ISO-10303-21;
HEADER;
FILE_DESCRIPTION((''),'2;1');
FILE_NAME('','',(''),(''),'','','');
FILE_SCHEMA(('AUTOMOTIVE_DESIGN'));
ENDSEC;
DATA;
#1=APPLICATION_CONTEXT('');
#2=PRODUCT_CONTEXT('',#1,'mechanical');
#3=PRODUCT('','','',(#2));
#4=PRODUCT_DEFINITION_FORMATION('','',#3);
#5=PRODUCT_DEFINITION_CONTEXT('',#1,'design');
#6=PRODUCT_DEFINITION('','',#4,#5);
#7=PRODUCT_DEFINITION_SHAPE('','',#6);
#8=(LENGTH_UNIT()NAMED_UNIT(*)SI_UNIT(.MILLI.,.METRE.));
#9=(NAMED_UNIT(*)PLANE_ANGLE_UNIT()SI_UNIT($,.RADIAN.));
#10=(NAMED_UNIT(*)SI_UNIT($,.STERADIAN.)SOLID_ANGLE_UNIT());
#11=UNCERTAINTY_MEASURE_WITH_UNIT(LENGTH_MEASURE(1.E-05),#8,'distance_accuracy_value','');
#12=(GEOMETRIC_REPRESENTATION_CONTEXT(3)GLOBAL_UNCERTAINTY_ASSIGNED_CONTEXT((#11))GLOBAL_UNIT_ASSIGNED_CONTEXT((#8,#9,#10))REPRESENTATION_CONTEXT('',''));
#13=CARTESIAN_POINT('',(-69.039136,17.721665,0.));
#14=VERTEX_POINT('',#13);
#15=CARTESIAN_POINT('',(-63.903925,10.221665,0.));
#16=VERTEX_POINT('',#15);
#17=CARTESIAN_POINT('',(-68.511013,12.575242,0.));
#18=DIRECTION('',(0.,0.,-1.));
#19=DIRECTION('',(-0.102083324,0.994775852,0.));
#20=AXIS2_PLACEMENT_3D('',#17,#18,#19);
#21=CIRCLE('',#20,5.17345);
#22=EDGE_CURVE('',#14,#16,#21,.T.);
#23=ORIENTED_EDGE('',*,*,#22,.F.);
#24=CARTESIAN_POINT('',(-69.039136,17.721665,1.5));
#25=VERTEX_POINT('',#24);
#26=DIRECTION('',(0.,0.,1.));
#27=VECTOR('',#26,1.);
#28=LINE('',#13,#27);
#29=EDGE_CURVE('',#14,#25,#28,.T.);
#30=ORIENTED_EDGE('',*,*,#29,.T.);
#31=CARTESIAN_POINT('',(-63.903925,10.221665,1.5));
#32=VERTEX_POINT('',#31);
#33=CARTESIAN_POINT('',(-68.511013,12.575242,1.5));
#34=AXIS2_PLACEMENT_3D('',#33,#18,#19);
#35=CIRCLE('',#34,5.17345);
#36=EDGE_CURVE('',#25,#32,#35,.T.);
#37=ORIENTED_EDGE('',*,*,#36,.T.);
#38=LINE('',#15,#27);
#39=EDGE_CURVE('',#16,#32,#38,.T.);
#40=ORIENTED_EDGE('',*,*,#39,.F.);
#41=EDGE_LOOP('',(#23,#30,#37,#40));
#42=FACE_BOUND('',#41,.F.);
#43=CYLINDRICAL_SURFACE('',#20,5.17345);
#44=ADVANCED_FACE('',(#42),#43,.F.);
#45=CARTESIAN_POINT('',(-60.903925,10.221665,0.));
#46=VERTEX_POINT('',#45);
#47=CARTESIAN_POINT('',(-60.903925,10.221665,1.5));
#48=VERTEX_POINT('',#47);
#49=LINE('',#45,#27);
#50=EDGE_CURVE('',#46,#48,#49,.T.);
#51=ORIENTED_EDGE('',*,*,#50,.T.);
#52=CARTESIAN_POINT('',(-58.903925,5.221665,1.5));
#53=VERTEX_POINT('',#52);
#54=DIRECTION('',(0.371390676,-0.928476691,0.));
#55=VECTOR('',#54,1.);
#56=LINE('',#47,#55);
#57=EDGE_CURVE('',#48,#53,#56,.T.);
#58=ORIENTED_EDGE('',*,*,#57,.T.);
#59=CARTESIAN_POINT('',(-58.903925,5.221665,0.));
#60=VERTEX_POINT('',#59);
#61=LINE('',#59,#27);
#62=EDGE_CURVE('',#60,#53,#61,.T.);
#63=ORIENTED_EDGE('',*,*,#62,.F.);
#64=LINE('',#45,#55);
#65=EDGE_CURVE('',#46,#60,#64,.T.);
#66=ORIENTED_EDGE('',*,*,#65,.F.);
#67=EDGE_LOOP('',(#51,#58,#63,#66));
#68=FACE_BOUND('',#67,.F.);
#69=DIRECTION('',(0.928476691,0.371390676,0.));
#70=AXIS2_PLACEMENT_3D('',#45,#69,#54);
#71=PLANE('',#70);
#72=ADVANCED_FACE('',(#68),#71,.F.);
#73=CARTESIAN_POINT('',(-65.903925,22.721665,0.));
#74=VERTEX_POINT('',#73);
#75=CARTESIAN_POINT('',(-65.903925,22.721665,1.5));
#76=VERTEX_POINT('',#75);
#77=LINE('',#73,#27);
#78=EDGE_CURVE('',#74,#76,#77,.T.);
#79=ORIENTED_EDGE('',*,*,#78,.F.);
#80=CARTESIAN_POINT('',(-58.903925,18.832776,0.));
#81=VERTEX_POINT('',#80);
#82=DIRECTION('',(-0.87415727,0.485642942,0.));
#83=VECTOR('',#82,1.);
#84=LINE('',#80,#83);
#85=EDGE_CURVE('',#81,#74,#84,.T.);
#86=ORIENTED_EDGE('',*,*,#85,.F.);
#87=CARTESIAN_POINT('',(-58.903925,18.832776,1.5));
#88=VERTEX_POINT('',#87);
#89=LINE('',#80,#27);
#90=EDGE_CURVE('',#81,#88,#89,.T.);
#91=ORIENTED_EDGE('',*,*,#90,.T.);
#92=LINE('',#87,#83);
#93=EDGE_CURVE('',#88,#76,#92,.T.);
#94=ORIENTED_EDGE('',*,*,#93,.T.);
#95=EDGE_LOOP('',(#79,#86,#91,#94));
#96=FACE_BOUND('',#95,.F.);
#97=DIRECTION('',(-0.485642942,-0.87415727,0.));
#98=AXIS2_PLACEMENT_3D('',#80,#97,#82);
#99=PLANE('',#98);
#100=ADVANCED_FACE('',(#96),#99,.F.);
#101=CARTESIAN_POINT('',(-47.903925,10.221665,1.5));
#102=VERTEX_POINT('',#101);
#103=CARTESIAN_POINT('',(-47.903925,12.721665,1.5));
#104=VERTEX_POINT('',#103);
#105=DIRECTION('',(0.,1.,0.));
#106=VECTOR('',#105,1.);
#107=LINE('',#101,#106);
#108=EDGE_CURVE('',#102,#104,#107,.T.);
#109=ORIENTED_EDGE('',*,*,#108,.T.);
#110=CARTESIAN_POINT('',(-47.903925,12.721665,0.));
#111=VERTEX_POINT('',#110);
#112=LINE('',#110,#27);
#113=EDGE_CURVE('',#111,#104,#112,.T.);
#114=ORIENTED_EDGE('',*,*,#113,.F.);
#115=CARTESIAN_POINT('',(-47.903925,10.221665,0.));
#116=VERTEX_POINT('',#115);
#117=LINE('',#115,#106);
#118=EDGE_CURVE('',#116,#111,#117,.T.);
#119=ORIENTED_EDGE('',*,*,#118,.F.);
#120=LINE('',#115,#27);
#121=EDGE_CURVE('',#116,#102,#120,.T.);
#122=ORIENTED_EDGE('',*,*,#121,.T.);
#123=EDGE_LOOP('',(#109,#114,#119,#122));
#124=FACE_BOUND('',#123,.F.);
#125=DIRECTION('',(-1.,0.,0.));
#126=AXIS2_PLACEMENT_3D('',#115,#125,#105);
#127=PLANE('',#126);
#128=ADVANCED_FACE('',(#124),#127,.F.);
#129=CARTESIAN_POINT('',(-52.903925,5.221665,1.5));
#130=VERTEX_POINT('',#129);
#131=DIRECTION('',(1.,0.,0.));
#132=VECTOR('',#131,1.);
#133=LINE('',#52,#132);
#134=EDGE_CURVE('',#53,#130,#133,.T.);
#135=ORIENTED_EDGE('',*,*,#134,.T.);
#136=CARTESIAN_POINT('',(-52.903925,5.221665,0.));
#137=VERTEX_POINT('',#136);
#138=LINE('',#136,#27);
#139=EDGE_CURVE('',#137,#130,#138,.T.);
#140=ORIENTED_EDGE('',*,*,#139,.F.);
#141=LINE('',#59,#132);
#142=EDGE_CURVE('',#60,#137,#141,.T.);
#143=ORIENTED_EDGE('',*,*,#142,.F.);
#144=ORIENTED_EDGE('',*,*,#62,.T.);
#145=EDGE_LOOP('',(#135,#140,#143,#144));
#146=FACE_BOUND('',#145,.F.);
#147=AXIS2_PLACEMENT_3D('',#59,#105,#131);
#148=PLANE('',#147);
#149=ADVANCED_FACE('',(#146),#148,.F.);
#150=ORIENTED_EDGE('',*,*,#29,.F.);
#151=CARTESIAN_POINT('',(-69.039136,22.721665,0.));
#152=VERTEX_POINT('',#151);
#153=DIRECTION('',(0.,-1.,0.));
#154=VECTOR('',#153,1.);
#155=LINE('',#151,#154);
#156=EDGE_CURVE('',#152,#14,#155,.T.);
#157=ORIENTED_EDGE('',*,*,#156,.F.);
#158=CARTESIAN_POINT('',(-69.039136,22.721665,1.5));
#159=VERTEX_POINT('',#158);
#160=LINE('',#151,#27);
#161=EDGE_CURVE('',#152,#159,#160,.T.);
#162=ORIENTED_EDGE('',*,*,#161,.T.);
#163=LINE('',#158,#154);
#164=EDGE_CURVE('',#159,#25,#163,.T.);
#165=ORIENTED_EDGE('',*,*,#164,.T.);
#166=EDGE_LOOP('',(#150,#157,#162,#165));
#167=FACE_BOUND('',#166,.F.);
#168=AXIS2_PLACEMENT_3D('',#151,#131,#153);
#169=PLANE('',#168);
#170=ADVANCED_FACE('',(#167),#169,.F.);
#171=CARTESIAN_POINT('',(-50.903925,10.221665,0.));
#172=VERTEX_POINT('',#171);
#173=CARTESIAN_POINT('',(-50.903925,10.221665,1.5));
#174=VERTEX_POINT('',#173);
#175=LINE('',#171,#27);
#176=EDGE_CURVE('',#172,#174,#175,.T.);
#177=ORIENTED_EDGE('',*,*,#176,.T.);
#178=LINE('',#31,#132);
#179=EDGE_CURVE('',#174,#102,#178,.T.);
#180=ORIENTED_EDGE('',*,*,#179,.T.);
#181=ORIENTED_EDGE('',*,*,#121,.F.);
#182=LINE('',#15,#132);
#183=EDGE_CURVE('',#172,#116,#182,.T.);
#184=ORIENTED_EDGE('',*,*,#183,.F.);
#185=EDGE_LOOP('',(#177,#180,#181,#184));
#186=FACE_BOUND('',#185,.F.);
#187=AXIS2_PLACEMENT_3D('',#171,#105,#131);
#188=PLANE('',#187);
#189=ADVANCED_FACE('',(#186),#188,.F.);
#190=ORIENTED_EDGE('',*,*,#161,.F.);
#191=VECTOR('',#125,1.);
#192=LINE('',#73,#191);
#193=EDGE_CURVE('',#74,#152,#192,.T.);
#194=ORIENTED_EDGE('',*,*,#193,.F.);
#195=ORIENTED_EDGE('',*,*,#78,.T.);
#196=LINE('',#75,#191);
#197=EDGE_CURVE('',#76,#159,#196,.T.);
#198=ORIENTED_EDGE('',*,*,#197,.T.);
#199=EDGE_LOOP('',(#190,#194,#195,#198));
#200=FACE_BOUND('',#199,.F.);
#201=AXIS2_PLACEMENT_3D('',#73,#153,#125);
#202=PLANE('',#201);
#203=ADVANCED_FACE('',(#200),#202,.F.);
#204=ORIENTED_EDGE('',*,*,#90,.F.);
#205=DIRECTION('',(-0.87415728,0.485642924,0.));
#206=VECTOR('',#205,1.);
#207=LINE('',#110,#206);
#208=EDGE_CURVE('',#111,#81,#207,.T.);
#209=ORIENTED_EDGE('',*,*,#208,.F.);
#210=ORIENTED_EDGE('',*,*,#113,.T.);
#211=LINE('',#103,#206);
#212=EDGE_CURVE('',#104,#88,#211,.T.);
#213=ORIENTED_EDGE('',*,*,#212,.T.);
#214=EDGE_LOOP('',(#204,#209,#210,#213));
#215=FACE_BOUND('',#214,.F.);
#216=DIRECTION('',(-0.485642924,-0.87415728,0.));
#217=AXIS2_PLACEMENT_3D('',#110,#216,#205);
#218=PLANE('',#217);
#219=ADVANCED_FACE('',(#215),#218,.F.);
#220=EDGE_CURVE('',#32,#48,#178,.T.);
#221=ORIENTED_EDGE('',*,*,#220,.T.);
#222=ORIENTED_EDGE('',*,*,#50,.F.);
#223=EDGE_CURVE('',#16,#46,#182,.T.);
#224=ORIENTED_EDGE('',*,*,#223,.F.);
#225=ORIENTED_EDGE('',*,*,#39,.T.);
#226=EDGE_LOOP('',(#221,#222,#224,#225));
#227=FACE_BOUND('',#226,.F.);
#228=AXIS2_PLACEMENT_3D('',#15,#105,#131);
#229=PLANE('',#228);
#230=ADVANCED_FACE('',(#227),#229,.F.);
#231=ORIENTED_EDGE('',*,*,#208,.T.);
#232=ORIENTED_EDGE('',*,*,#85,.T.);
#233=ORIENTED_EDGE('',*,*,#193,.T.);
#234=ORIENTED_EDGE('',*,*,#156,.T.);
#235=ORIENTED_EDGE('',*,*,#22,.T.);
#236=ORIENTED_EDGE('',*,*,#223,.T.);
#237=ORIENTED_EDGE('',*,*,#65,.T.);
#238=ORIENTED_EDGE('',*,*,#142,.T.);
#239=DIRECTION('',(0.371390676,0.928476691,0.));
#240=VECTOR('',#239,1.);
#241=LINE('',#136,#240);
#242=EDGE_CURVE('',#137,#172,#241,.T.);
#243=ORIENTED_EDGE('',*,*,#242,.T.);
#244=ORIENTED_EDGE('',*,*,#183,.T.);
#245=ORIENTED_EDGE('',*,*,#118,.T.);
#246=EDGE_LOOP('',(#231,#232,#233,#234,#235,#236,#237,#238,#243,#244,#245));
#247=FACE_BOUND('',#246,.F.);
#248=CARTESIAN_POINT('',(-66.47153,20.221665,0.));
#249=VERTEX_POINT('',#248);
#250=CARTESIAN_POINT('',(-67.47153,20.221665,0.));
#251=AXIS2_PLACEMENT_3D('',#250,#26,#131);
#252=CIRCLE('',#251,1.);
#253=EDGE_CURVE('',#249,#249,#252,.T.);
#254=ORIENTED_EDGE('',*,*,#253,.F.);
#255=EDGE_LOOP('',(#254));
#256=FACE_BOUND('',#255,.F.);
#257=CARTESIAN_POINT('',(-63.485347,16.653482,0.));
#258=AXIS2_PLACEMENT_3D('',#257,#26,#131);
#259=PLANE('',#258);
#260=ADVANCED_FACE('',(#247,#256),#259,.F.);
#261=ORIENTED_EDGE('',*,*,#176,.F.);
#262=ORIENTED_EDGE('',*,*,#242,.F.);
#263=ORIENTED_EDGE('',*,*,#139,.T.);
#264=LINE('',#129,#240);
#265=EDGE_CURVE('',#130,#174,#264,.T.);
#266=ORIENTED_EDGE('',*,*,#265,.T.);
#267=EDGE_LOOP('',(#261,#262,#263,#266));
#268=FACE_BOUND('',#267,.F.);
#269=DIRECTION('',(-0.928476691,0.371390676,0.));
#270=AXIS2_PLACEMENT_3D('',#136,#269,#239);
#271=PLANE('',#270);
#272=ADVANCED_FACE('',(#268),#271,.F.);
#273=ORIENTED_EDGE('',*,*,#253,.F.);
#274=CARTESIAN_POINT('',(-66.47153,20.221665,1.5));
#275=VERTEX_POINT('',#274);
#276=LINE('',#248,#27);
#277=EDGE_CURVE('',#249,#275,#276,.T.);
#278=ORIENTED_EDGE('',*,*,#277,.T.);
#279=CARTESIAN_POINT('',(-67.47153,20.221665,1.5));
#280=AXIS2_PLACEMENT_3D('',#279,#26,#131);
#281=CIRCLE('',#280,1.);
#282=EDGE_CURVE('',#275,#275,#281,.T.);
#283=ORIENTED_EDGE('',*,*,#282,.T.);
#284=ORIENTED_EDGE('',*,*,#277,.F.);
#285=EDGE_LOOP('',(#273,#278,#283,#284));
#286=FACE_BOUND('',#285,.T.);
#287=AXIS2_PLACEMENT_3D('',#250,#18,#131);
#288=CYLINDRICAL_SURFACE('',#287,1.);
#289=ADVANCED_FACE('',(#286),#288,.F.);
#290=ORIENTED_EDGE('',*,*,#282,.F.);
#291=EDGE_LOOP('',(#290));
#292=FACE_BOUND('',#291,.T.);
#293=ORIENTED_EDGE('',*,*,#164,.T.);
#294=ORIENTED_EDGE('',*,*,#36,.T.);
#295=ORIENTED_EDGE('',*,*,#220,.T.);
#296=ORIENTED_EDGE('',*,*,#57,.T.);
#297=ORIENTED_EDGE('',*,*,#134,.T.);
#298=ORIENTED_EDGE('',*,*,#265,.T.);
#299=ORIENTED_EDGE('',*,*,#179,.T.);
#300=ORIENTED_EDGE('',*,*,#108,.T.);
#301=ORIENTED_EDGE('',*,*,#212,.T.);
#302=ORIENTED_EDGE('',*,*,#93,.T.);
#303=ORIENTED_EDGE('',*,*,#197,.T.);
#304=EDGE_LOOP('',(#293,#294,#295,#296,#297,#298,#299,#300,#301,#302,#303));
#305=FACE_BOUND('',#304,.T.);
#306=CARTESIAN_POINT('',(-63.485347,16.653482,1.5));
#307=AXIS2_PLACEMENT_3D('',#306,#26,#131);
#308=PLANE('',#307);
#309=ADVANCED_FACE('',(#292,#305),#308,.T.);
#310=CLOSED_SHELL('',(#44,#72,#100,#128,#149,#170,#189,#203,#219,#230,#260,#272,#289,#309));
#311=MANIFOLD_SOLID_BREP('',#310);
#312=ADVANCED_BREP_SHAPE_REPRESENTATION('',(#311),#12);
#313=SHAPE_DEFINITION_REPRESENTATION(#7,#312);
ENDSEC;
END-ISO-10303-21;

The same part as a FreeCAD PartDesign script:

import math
import FreeCAD as App
import Part
import Sketcher

V = App.Vector
Q = App.Units.Quantity

doc = App.newDocument("Part")
body = doc.addObject("PartDesign::Body", "Body")

sketch1 = doc.addObject("Sketcher::SketchObject", "Sketch")
body.addObject(sketch1)
sketch1.AttachmentSupport = (doc.XY_Plane, [""])
sketch1.MapMode = "FlatFace"
sketch1.addGeometry([
    Part.LineSegment(V(-63.9, 10.2, 0), V(-60.9, 10.2, 0)),
    Part.LineSegment(V(-60.9, 10.2, 0), V(-58.9, 5.2, 0)),
    Part.LineSegment(V(-58.9, 5.2, 0), V(-52.9, 5.2, 0)),
    Part.LineSegment(V(-52.9, 5.2, 0), V(-50.9, 10.2, 0)),
    Part.LineSegment(V(-50.9, 10.2, 0), V(-47.9, 10.2, 0)),
    Part.LineSegment(V(-47.9, 10.2, 0), V(-47.9, 12.7, 0)),
    Part.LineSegment(V(-47.9, 12.7, 0), V(-58.9, 18.8, 0)),
    Part.LineSegment(V(-58.9, 18.8, 0), V(-65.9, 22.7, 0)),
    Part.LineSegment(V(-65.9, 22.7, 0), V(-69, 22.7, 0)),
    Part.LineSegment(V(-69, 22.7, 0), V(-69, 17.7, 0)),
    Part.ArcOfCircle(Part.Circle(V(-68.5, 12.6, 0), V(0, 0, 1), 5.2), math.radians(-27), math.radians(96)),
    Part.Circle(V(-67.5, 20.2, 0), V(0, 0, 1), 1),
], False)
sketch1.addConstraint([
    Sketcher.Constraint("Coincident", 0, 2, 1, 1),
    Sketcher.Constraint("Coincident", 1, 2, 2, 1),
    Sketcher.Constraint("Coincident", 2, 2, 3, 1),
    Sketcher.Constraint("Coincident", 3, 2, 4, 1),
    Sketcher.Constraint("Coincident", 4, 2, 5, 1),
    Sketcher.Constraint("Coincident", 5, 2, 6, 1),
    Sketcher.Constraint("Coincident", 6, 2, 7, 1),
    Sketcher.Constraint("Coincident", 7, 2, 8, 1),
    Sketcher.Constraint("Coincident", 8, 2, 9, 1),
    Sketcher.Constraint("Coincident", 9, 2, 10, 2),
    Sketcher.Constraint("Coincident", 10, 1, 0, 1),
    Sketcher.Constraint("Horizontal", 0),
    Sketcher.Constraint("Horizontal", 2),
    Sketcher.Constraint("Horizontal", 4),
    Sketcher.Constraint("Vertical", 5),
    Sketcher.Constraint("Horizontal", 8),
    Sketcher.Constraint("Vertical", 9),
    Sketcher.Constraint("Parallel", 6, 7),
    Sketcher.Constraint("Horizontal", 0, 2, 3, 2),
    Sketcher.Constraint("Vertical", 1, 2, 6, 2),
    Sketcher.Constraint("Equal", 0, 4),
    Sketcher.Constraint("Equal", 1, 3),
    Sketcher.Constraint("Diameter", 11, Q("2 mm")),
    Sketcher.Constraint("DistanceX", 0, 1, 0, 2, Q("3 mm")),
    Sketcher.Constraint("DistanceX", 2, 1, 2, 2, Q("6 mm")),
    Sketcher.Constraint("DistanceY", 9, 2, 9, 1, Q("5 mm")),
    Sketcher.Constraint("DistanceY", 5, 1, 5, 2, Q("2.5 mm")),
    Sketcher.Constraint("DistanceY", 0, 2, 11, 3, Q("10 mm")),
    Sketcher.Constraint("DistanceX", 0, 2, 1, 2, Q("2 mm")),
    Sketcher.Constraint("DistanceY", 1, 2, 0, 2, Q("5 mm")),
    Sketcher.Constraint("DistanceX", 7, 2, 6, 2, Q("7 mm")),
    Sketcher.Constraint("DistanceY", 11, 3, 7, 2, Q("2.5 mm")),
    Sketcher.Constraint("Radius", 10, Q("5.17345 mm")),
    Sketcher.Constraint("DistanceX", 8, 2, 8, 1, Q("3.135211 mm")),
    Sketcher.Constraint("DistanceY", -1, 1, 10, 3, Q("12.575242 mm")),
    Sketcher.Constraint("DistanceX", 11, 3, -1, 1, Q("67.47153 mm")),
    Sketcher.Constraint("DistanceX", 10, 3, -1, 1, Q("68.511013 mm")),
])
pad1 = doc.addObject("PartDesign::Pad", "Pad")
body.addObject(pad1)
pad1.Profile = sketch1
pad1.Length = 1.5

doc.recompute()
